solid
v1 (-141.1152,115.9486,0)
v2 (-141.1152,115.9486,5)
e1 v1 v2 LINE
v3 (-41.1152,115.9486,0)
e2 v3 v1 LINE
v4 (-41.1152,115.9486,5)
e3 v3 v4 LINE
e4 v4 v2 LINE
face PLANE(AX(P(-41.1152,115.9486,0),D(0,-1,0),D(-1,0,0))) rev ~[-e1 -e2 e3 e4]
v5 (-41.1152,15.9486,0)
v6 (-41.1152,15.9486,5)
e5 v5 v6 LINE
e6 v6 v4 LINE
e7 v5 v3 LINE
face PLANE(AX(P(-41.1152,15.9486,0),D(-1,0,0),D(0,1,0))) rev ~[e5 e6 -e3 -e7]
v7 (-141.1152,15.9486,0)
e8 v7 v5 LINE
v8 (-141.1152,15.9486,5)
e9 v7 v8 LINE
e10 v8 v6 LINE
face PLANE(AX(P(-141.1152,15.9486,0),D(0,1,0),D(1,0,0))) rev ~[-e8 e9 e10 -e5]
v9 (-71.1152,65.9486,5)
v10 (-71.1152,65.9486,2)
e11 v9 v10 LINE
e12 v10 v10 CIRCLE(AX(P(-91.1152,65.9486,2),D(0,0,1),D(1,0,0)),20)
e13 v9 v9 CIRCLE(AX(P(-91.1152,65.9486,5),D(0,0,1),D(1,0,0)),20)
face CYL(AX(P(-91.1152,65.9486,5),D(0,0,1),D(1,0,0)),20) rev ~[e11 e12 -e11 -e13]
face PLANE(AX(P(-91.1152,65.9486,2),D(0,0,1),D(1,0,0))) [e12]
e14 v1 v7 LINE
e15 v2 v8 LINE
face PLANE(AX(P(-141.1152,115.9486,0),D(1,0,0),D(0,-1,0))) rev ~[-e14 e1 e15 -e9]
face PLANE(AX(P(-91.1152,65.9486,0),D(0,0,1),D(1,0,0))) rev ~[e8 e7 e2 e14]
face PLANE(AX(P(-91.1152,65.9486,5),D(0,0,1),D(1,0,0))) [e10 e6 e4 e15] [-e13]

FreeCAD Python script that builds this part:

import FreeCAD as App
import Part
import Sketcher


def add_polygon(sketch, points):
    """Adds a closed chain of lines whose ends are joined by coincident constraints."""
    first, n = sketch.GeometryCount, len(points)
    for a, b in zip(points, points[1:] + points[:1]):
        sketch.addGeometry(Part.LineSegment(App.Vector(*a, 0), App.Vector(*b, 0)), False)
    for i in range(n):
        sketch.addConstraint(Sketcher.Constraint("Coincident", first + i, 2, first + (i + 1) % n, 1))

doc = App.newDocument("Part")
params = doc.addObject("Spreadsheet::Sheet", "Params")
for row, (alias, value) in enumerate([
    ("sketch1_width", "100 mm"),
    ("pad1_length", "5 mm"),
    ("sketch2_diameter", "40 mm"),
    ("pocket1_length", "3 mm"),
], start=1):
    params.set(f"A{row}", alias)
    params.set(f"B{row}", "=" + value)
    params.setAlias(f"B{row}", alias)

body = doc.addObject("PartDesign::Body", "Body")

sketch1 = body.newObject("Sketcher::SketchObject", "Sketch")
sketch1.AttachmentSupport = (doc.getObject("XY_Plane"), [""])
sketch1.MapMode = "FlatFace"
add_polygon(sketch1, [(-141, 116), (-141, 16), (-41, 16), (-41, 116)])
sketch1.addConstraint([
    Sketcher.Constraint("Vertical", 0),
    Sketcher.Constraint("Horizontal", 1),
    Sketcher.Constraint("Vertical", 2),
    Sketcher.Constraint("Horizontal", 3),
    Sketcher.Constraint("Equal", 3, 0),
    Sketcher.Constraint("DistanceX", 1, 1, 1, 2, 100.0),
    Sketcher.Constraint("DistanceX", 0, 2, -1, 1, 141.1152),
    Sketcher.Constraint("DistanceY", -1, 1, 0, 2, 15.9486),
])
sketch1.setExpression("Constraints[9]", "Params.sketch1_width")
pad1 = body.newObject("PartDesign::Pad", "Pad")
pad1.Profile = sketch1
pad1.setExpression("Length", "Params.pad1_length")

sketch2 = body.newObject("Sketcher::SketchObject", "Sketch001")
sketch2.AttachmentSupport = (doc.getObject("XY_Plane"), [""])
sketch2.MapMode = "FlatFace"
sketch2.AttachmentOffset = App.Placement(App.Vector(0, 0, 5), App.Rotation())
sketch2.addGeometry(Part.Circle(App.Vector(-91, 66, 0), App.Vector(0, 0, 1), 20), False)
sketch2.addConstraint([
    Sketcher.Constraint("Diameter", 0, 40.0),
    Sketcher.Constraint("DistanceX", 0, 3, -1, 1, 91.1152),
    Sketcher.Constraint("DistanceY", -1, 1, 0, 3, 65.9486),
])
sketch2.setExpression("Constraints[0]", "Params.sketch2_diameter")
pocket1 = body.newObject("PartDesign::Pocket", "Pocket")
pocket1.Profile = sketch2
pocket1.setExpression("Length", "Params.pocket1_length")

doc.recompute()
